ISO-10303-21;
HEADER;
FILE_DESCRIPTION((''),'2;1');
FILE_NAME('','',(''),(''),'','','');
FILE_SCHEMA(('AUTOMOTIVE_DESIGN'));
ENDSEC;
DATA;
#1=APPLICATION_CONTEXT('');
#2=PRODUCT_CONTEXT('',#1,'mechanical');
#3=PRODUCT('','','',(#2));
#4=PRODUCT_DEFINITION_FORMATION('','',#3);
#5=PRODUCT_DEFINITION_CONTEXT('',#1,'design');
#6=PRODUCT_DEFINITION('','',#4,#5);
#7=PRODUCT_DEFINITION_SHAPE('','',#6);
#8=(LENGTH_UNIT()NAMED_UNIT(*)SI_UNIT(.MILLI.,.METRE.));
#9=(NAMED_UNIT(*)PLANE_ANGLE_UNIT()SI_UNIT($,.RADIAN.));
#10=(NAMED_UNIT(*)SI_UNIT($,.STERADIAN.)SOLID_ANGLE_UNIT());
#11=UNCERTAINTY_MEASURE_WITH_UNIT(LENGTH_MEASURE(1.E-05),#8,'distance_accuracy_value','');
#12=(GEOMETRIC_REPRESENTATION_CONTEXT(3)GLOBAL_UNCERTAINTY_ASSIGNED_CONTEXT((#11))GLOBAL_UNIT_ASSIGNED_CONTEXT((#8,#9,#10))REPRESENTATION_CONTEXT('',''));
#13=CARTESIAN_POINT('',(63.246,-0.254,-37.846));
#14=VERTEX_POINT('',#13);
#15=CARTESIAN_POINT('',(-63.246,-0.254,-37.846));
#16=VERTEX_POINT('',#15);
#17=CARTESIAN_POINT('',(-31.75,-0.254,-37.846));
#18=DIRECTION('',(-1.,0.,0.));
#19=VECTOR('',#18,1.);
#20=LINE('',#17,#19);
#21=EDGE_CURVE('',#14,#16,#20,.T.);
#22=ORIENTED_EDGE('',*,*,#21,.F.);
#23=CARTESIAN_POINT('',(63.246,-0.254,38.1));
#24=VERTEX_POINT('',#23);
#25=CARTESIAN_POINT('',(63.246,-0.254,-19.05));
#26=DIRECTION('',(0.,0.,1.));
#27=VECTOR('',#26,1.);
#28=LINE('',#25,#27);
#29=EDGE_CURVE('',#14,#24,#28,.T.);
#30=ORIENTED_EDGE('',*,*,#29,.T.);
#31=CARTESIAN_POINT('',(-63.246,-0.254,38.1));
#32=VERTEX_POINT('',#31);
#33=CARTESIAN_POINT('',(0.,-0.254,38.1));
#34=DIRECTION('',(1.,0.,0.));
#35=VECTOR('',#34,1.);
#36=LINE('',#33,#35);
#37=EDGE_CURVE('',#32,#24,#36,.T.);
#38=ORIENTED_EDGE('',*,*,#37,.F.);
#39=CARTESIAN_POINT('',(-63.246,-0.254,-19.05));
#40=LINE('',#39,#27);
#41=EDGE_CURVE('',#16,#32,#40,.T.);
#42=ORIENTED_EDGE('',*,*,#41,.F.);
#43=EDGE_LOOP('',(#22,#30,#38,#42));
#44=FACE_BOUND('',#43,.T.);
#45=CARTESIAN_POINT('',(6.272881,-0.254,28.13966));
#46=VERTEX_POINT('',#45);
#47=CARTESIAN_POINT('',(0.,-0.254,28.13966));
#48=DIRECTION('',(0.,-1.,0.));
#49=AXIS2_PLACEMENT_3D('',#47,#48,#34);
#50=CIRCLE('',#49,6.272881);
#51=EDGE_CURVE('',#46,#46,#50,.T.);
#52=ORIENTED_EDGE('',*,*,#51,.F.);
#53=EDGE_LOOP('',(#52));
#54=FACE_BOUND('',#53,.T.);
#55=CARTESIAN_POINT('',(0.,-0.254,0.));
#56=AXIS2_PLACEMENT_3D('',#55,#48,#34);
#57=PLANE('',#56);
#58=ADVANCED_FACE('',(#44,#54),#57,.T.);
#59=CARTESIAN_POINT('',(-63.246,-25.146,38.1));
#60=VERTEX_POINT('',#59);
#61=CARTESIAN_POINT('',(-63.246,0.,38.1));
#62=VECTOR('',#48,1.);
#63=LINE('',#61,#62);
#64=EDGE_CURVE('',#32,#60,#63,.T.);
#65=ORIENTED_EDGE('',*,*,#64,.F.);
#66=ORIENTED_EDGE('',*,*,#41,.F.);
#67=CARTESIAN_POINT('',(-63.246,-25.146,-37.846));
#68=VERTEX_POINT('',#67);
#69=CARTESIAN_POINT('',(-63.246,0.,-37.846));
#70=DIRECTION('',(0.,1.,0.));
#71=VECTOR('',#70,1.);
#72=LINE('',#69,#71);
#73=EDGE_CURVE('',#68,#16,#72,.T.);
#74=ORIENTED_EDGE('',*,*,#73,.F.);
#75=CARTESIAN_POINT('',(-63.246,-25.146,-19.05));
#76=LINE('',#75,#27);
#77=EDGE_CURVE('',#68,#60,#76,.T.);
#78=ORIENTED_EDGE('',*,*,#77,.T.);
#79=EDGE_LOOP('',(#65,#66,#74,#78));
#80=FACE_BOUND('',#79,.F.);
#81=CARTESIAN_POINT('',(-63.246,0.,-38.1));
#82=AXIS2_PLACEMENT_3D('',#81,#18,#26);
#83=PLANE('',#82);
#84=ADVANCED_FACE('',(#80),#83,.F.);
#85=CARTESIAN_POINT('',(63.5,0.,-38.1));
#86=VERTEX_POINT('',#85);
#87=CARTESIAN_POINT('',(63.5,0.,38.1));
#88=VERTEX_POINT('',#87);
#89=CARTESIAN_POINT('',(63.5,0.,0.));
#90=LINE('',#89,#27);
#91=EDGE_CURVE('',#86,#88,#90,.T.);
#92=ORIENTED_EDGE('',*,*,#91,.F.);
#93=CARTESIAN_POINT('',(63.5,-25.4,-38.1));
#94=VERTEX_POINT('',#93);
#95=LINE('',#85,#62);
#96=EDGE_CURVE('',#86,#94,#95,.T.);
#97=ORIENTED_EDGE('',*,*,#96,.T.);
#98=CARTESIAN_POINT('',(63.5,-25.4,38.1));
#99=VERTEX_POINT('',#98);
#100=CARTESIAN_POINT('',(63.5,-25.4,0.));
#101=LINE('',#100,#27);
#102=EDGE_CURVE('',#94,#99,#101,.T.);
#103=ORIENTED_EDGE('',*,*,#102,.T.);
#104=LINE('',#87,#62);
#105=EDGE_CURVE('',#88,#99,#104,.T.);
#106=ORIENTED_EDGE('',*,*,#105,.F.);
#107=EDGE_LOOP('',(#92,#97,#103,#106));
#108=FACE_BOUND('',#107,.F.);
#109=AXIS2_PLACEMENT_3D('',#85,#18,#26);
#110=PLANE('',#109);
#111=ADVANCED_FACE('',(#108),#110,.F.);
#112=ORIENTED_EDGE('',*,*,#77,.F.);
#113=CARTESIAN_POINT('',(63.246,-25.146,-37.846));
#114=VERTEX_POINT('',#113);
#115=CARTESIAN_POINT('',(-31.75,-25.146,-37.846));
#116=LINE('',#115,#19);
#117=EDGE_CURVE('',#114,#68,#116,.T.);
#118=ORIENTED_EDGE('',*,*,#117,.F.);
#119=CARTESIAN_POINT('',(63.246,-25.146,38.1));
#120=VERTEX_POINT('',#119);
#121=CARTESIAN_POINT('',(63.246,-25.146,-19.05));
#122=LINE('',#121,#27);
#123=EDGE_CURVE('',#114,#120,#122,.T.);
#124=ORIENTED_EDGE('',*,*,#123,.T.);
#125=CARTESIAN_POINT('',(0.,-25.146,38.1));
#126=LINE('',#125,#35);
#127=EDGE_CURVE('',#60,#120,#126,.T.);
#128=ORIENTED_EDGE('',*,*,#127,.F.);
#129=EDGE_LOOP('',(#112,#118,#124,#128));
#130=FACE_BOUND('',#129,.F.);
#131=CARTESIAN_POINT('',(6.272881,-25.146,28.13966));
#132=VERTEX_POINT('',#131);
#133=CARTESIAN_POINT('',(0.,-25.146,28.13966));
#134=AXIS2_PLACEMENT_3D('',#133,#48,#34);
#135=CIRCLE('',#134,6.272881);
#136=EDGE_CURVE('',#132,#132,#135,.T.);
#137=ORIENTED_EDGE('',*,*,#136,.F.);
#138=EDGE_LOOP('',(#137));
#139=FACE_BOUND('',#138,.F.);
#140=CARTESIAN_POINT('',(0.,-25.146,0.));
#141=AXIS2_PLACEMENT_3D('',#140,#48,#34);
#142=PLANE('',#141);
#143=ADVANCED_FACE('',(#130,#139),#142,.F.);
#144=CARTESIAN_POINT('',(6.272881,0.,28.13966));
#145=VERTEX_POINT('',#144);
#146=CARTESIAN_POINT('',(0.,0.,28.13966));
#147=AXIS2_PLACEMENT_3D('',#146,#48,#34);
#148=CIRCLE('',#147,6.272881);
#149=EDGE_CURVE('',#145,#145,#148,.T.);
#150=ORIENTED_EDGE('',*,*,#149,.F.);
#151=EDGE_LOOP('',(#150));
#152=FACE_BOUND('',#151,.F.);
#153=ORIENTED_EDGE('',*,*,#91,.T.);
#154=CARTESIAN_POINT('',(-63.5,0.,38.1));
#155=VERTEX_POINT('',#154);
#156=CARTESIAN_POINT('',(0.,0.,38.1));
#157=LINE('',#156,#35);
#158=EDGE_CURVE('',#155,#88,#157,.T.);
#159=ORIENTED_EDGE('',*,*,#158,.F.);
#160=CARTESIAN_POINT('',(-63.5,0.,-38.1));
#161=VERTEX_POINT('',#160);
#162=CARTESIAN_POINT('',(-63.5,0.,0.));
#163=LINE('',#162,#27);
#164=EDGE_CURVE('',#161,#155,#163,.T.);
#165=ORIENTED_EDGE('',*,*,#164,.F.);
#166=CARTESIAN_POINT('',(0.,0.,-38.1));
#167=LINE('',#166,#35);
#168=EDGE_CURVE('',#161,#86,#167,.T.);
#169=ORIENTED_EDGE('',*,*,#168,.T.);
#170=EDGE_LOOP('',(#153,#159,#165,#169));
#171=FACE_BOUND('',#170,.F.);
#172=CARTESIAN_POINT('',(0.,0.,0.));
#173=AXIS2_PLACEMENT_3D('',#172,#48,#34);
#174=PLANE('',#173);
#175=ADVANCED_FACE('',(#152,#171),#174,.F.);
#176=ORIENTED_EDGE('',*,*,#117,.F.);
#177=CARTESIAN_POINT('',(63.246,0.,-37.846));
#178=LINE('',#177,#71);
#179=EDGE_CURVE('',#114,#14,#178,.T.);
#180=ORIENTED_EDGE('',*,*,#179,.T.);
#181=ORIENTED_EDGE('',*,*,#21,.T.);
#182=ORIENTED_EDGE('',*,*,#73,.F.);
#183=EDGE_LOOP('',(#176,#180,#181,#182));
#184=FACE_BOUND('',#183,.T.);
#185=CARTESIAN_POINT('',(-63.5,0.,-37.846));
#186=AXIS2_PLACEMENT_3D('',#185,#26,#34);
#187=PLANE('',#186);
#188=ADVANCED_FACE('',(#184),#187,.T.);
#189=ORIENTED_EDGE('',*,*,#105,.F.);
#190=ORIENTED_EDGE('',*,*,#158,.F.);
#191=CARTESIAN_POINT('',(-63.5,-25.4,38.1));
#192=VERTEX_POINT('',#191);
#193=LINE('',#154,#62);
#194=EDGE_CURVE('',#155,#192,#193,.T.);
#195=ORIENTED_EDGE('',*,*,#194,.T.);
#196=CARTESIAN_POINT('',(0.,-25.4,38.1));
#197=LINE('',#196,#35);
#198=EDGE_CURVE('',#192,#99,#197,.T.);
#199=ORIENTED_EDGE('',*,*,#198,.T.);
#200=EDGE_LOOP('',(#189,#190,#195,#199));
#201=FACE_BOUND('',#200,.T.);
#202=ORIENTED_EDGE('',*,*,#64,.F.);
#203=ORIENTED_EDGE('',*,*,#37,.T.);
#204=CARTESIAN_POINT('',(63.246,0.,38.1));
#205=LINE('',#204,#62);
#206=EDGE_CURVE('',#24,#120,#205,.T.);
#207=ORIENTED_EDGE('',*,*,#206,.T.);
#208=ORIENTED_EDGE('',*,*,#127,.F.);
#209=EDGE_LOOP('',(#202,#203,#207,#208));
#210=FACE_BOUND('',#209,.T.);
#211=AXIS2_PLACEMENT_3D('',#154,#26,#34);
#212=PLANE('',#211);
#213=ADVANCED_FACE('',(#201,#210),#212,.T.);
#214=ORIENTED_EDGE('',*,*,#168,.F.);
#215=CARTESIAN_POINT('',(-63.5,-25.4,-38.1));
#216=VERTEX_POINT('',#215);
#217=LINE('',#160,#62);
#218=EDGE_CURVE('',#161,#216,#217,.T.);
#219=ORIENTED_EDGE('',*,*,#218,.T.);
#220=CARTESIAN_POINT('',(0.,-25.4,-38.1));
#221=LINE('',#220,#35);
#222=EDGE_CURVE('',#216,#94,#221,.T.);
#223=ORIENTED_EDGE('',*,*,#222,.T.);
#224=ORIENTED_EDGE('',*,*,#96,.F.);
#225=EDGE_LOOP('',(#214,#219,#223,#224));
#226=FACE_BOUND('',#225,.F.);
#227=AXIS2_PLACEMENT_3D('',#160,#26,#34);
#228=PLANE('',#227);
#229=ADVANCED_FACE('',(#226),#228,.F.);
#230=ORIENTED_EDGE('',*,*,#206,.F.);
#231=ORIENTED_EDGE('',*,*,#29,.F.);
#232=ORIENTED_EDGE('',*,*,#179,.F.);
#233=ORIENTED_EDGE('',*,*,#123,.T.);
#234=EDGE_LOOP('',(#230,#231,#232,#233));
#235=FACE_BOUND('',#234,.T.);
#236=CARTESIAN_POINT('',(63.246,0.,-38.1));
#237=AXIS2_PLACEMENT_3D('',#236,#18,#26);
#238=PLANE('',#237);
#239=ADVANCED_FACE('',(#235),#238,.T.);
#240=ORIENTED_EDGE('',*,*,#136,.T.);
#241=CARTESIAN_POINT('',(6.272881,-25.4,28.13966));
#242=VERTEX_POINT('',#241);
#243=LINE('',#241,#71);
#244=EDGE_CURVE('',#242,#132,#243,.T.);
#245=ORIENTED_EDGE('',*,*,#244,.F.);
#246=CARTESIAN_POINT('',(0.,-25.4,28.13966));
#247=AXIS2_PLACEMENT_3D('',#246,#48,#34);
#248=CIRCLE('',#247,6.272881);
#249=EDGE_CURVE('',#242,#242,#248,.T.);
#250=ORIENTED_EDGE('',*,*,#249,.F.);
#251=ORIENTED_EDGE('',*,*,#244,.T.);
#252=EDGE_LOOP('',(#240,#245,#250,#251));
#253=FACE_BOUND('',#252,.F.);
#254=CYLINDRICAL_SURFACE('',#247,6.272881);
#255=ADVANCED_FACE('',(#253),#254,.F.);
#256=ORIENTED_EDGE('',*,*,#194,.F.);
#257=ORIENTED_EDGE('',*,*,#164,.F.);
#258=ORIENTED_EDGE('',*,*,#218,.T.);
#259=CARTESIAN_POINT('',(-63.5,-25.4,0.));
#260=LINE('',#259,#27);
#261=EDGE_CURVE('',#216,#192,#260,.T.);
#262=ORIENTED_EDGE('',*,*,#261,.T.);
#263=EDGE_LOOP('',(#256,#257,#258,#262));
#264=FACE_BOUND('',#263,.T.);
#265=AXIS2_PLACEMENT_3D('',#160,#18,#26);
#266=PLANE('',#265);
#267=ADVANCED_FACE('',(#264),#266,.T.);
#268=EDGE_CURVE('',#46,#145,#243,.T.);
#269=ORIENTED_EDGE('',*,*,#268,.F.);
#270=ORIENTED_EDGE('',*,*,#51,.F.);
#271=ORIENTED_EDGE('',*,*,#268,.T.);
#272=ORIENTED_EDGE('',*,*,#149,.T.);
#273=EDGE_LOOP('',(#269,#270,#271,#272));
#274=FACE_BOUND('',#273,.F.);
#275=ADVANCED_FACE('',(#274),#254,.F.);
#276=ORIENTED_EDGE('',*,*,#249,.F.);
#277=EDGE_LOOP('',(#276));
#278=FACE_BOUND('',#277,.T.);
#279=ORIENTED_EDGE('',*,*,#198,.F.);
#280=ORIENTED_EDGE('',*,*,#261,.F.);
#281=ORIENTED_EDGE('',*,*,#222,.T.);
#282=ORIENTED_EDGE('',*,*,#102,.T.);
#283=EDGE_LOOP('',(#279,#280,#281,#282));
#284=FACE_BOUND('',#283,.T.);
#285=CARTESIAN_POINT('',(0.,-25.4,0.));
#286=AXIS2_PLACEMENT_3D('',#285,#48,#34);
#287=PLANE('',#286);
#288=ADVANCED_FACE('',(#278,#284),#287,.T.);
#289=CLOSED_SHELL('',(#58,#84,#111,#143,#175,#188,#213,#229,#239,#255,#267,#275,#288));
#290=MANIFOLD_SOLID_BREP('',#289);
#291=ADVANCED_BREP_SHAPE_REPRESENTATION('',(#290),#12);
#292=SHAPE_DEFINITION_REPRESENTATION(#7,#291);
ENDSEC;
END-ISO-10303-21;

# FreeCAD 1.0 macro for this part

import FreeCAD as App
import Part
import Sketcher

V = App.Vector
Q = App.Units.Quantity


def faces_at(feature, points):
    """Names of the faces that lie closest to the given points."""
    faces = feature.Shape.Faces
    near = lambda p: min(range(len(faces)), key=lambda i: faces[i].distToShape(Part.Vertex(*p))[0])
    return sorted({f"Face{near(p) + 1}" for p in points})


def add_polygon(sketch, points):
    """Adds a closed chain of lines whose ends are joined by coincident constraints."""
    first, n = sketch.GeometryCount, len(points)
    for a, b in zip(points, points[1:] + points[:1]):
        sketch.addGeometry(Part.LineSegment(App.Vector(*a, 0), App.Vector(*b, 0)), False)
    for i in range(n):
        sketch.addConstraint(Sketcher.Constraint("Coincident", first + i, 2, first + (i + 1) % n, 1))

doc = App.newDocument("Part")
body = doc.addObject("PartDesign::Body", "Body")

sketch1 = body.newObject("Sketcher::SketchObject", "Sketch")
sketch1.AttachmentSupport = (doc.getObject("XZ_Plane"), [""])
sketch1.MapMode = "FlatFace"
add_polygon(sketch1, [(-64, 38), (-64, -38), (64, -38), (64, 38)])
sketch1.addConstraint([
    Sketcher.Constraint("Vertical", 0),
    Sketcher.Constraint("Horizontal", 1),
    Sketcher.Constraint("Vertical", 2),
    Sketcher.Constraint("Horizontal", 3),
    Sketcher.Constraint("Symmetric", 0, 2, 2, 2, -1, 1),
    Sketcher.Constraint("DistanceX", 1, 1, 1, 2, Q("5 in")),
    Sketcher.Constraint("DistanceY", 0, 2, 0, 1, Q("3 in")),
])
pad1 = body.newObject("PartDesign::Pad", "Pad")
pad1.Profile = sketch1
pad1.Length = Q("1 in")
doc.recompute()

thickness = body.newObject("PartDesign::Thickness", "Thickness")
thickness.Base = (pad1, faces_at(pad1, [(0, -12.7, 38.1)]))
thickness.Value = Q("0.01 in")
thickness.Reversed = True
thickness.Join = "Arc"

sketch2 = body.newObject("Sketcher::SketchObject", "Sketch001")
sketch2.AttachmentSupport = (doc.getObject("XZ_Plane"), [""])
sketch2.MapMode = "FlatFace"
sketch2.AttachmentOffset = App.Placement(V(0, 0, 1 * 25.4), App.Rotation())
sketch2.addGeometry(Part.Circle(V(0, 28, 0), V(0, 0, 1), 6), False)
sketch2.addConstraint([
    Sketcher.Constraint("PointOnObject", 0, 3, -2),
    Sketcher.Constraint("Diameter", 0, 12.545762),
    Sketcher.Constraint("DistanceY", -1, 1, 0, 3, 28.13966),
])
pocket1 = body.newObject("PartDesign::Pocket", "Pocket")
pocket1.Profile = sketch2
pocket1.Length = Q("2 in")

doc.recompute()
